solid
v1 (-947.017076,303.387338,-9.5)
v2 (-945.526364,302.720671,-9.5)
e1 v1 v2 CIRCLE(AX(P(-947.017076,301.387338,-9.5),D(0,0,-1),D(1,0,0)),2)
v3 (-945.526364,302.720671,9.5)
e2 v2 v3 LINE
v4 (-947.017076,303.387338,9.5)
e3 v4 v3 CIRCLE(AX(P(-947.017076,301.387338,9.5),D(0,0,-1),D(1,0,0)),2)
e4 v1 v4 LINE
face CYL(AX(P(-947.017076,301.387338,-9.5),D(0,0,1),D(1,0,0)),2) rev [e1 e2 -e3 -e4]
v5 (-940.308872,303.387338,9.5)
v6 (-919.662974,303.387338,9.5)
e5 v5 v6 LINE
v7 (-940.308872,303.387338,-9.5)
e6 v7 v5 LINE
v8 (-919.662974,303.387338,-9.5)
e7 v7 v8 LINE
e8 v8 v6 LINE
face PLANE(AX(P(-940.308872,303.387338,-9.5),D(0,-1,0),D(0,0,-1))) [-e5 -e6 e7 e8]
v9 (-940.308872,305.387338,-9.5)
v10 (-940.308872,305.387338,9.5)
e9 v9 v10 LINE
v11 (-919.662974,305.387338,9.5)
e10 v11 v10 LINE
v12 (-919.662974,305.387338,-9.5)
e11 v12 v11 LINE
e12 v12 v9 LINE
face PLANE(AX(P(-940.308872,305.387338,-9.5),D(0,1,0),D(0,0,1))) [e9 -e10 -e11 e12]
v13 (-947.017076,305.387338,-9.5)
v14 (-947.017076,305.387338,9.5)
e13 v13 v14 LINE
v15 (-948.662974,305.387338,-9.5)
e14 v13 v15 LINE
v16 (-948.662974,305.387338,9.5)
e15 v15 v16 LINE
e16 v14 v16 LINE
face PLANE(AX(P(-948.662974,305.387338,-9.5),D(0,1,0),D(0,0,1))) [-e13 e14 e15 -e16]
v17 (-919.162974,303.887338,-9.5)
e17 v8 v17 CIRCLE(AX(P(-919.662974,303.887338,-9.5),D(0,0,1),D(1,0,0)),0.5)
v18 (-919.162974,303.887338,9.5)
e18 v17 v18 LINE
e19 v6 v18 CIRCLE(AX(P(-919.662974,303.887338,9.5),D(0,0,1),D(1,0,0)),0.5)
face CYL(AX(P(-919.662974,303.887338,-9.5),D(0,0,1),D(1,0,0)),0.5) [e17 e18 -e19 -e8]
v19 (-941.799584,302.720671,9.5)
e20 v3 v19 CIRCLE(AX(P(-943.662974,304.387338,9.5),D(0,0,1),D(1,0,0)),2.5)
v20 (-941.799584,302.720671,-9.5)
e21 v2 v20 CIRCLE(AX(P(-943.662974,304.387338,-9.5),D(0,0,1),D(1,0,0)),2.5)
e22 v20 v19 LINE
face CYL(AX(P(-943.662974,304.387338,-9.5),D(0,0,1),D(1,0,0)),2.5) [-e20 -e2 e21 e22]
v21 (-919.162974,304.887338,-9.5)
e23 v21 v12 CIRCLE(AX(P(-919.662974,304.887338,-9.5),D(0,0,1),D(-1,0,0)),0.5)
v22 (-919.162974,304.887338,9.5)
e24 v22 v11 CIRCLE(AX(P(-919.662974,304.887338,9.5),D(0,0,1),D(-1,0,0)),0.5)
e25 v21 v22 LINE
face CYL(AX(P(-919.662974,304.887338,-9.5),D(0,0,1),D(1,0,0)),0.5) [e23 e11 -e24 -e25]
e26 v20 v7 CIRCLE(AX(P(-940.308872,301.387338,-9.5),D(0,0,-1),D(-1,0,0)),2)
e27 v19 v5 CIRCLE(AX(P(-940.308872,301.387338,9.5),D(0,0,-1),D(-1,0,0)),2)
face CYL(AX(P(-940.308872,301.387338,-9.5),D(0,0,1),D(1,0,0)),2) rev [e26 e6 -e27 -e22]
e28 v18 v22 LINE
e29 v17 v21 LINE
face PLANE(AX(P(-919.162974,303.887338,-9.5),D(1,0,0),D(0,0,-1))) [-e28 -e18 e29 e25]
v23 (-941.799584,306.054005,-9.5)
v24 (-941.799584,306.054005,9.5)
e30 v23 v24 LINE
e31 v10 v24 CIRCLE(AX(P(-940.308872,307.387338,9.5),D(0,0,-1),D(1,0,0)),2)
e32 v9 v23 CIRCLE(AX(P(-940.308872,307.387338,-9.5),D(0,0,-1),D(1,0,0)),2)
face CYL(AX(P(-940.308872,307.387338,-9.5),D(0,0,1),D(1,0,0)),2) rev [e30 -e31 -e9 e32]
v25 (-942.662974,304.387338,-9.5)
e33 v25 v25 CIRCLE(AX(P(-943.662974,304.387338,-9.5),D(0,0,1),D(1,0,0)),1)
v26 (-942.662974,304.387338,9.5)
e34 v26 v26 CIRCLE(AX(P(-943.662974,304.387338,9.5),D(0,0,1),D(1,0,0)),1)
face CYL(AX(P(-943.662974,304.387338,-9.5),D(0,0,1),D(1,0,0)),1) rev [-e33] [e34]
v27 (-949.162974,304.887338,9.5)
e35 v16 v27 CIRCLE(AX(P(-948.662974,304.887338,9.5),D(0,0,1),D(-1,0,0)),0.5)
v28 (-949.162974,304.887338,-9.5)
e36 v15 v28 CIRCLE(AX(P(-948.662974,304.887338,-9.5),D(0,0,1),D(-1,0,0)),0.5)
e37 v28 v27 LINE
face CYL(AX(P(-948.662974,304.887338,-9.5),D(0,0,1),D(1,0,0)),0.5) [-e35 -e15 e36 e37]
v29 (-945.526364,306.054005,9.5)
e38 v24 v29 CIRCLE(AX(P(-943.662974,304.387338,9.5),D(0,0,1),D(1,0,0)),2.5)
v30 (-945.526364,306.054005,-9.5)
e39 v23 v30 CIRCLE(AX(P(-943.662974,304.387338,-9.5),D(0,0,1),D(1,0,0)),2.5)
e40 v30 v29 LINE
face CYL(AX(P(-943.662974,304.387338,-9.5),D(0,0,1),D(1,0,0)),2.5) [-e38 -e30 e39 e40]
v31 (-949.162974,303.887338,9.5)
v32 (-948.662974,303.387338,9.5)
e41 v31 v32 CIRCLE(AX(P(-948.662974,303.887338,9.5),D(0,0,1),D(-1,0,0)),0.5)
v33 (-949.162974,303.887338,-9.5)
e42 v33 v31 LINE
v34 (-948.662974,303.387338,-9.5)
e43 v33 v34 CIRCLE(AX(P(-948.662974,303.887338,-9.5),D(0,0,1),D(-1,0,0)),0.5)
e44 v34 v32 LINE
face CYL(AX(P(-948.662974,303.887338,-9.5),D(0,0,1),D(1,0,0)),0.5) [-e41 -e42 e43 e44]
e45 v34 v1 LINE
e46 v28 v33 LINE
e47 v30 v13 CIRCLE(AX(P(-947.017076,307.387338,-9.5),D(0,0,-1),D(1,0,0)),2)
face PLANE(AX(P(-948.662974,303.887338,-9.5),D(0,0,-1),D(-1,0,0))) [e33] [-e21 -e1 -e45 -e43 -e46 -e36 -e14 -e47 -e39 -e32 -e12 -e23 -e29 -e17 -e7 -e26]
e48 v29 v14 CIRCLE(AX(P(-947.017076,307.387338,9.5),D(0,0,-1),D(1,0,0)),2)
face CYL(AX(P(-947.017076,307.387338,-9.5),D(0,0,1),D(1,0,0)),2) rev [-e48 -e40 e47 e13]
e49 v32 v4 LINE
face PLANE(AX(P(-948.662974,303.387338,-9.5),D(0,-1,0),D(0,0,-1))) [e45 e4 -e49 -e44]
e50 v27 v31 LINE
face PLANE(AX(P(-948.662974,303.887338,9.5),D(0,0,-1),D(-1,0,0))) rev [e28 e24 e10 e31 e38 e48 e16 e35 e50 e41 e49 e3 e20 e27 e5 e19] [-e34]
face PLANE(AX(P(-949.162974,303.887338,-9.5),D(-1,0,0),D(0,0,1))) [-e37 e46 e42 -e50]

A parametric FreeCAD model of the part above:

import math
import FreeCAD as App
import Part
import Sketcher
from FreeCAD import Vector

doc = App.newDocument("Part")
body = doc.addObject("PartDesign::Body", "Body")

sketch1 = body.newObject("Sketcher::SketchObject", "Sketch")
sketch1.AttachmentSupport = (doc.getObject("XY_Plane"), [""])
sketch1.MapMode = "FlatFace"
sketch1.addGeometry(Part.LineSegment(Vector(-948.66, 303.39, 0), Vector(-947.02, 303.39, 0)), False)
sketch1.addGeometry(Part.ArcOfCircle(Part.Circle(Vector(-947.02, 301.39, 0), Vector(0, 0, 1), 2), math.radians(42), math.radians(90)), False)
sketch1.addGeometry(Part.ArcOfCircle(Part.Circle(Vector(-943.66, 304.39, 0), Vector(0, 0, 1), 2.5), math.radians(-138), math.radians(-42)), False)
sketch1.addGeometry(Part.ArcOfCircle(Part.Circle(Vector(-940.31, 301.39, 0), Vector(0, 0, 1), 2), math.radians(90), math.radians(138)), False)
sketch1.addGeometry(Part.LineSegment(Vector(-940.31, 303.39, 0), Vector(-919.66, 303.39, 0)), False)
sketch1.addGeometry(Part.ArcOfCircle(Part.Circle(Vector(-919.66, 303.89, 0), Vector(0, 0, 1), 0.5), math.radians(-90), math.radians(0)), False)
sketch1.addGeometry(Part.LineSegment(Vector(-919.16, 303.89, 0), Vector(-919.16, 304.89, 0)), False)
sketch1.addGeometry(Part.ArcOfCircle(Part.Circle(Vector(-919.66, 304.89, 0), Vector(0, 0, 1), 0.5), math.radians(0), math.radians(90)), False)
sketch1.addGeometry(Part.LineSegment(Vector(-919.66, 305.39, 0), Vector(-940.31, 305.39, 0)), False)
sketch1.addGeometry(Part.ArcOfCircle(Part.Circle(Vector(-940.31, 307.39, 0), Vector(0, 0, 1), 2), math.radians(-138), math.radians(-90)), False)
sketch1.addGeometry(Part.ArcOfCircle(Part.Circle(Vector(-943.66, 304.39, 0), Vector(0, 0, 1), 2.5), math.radians(42), math.radians(138)), False)
sketch1.addGeometry(Part.ArcOfCircle(Part.Circle(Vector(-947.02, 307.39, 0), Vector(0, 0, 1), 2), math.radians(-90), math.radians(-42)), False)
sketch1.addGeometry(Part.LineSegment(Vector(-947.02, 305.39, 0), Vector(-948.66, 305.39, 0)), False)
sketch1.addGeometry(Part.ArcOfCircle(Part.Circle(Vector(-948.66, 304.89, 0), Vector(0, 0, 1), 0.5), math.radians(90), math.radians(180)), False)
sketch1.addGeometry(Part.LineSegment(Vector(-949.16, 304.89, 0), Vector(-949.16, 303.89, 0)), False)
sketch1.addGeometry(Part.ArcOfCircle(Part.Circle(Vector(-948.66, 303.89, 0), Vector(0, 0, 1), 0.5), math.radians(180), math.radians(270)), False)
sketch1.addGeometry(Part.Circle(Vector(-943.66, 304.39, 0), Vector(0, 0, 1), 1), False)
sketch1.addConstraint(Sketcher.Constraint("Tangent", 0, 2, 1, 2))
sketch1.addConstraint(Sketcher.Constraint("Tangent", 1, 1, 2, 1))
sketch1.addConstraint(Sketcher.Constraint("Tangent", 2, 2, 3, 2))
sketch1.addConstraint(Sketcher.Constraint("Tangent", 3, 1, 4, 1))
sketch1.addConstraint(Sketcher.Constraint("Tangent", 4, 2, 5, 1))
sketch1.addConstraint(Sketcher.Constraint("Tangent", 5, 2, 6, 1))
sketch1.addConstraint(Sketcher.Constraint("Tangent", 6, 2, 7, 1))
sketch1.addConstraint(Sketcher.Constraint("Tangent", 7, 2, 8, 1))
sketch1.addConstraint(Sketcher.Constraint("Tangent", 8, 2, 9, 2))
sketch1.addConstraint(Sketcher.Constraint("Tangent", 9, 1, 10, 1))
sketch1.addConstraint(Sketcher.Constraint("Tangent", 10, 2, 11, 2))
sketch1.addConstraint(Sketcher.Constraint("Tangent", 11, 1, 12, 1))
sketch1.addConstraint(Sketcher.Constraint("Tangent", 12, 2, 13, 1))
sketch1.addConstraint(Sketcher.Constraint("Tangent", 13, 2, 14, 1))
sketch1.addConstraint(Sketcher.Constraint("Tangent", 14, 2, 15, 1))
sketch1.addConstraint(Sketcher.Constraint("Tangent", 15, 2, 0, 1))
sketch1.addConstraint(Sketcher.Constraint("Horizontal", 0))
sketch1.addConstraint(Sketcher.Constraint("Horizontal", 4))
sketch1.addConstraint(Sketcher.Constraint("Vertical", 6))
sketch1.addConstraint(Sketcher.Constraint("Horizontal", 8))
sketch1.addConstraint(Sketcher.Constraint("Horizontal", 12))
sketch1.addConstraint(Sketcher.Constraint("Vertical", 14))
sketch1.addConstraint(Sketcher.Constraint("Coincident", 10, 3, 2, 3))
sketch1.addConstraint(Sketcher.Constraint("Coincident", 16, 3, 2, 3))
sketch1.addConstraint(Sketcher.Constraint("Equal", 1, 3))
sketch1.addConstraint(Sketcher.Constraint("Equal", 5, 7))
sketch1.addConstraint(Sketcher.Constraint("Equal", 3, 9))
sketch1.addConstraint(Sketcher.Constraint("Equal", 2, 10))
sketch1.addConstraint(Sketcher.Constraint("Equal", 9, 11))
sketch1.addConstraint(Sketcher.Constraint("Equal", 7, 13))
sketch1.addConstraint(Sketcher.Constraint("Equal", 13, 15))
sketch1.addConstraint(Sketcher.Constraint("Horizontal", 1, 3, 3, 3))
sketch1.addConstraint(Sketcher.Constraint("Horizontal", 9, 3, 11, 3))
sketch1.addConstraint(Sketcher.Constraint("Vertical", 3, 3, 9, 3))
sketch1.addConstraint(Sketcher.Constraint("Diameter", 16, 2.0))
sketch1.addConstraint(Sketcher.Constraint("Radius", 1, 2.0))
sketch1.addConstraint(Sketcher.Constraint("Radius", 2, 2.5))
sketch1.addConstraint(Sketcher.Constraint("Radius", 5, 0.5))
sketch1.addConstraint(Sketcher.Constraint("DistanceY", 6, 1, 6, 2, 1.0))
sketch1.addConstraint(Sketcher.Constraint("DistanceX", 2, 3, 5, 3, 24.0))
sketch1.addConstraint(Sketcher.Constraint("DistanceX", 13, 3, 10, 3, 5.0))
sketch1.addConstraint(Sketcher.Constraint("DistanceY", -1, 1, 1, 3, 301.387338))
sketch1.addConstraint(Sketcher.Constraint("DistanceX", 1, 3, -1, 1, 947.017076))
pad1 = body.newObject("PartDesign::Pad", "Pad")
pad1.Profile = sketch1
pad1.Type = "TwoLengths"
pad1.Length = 9.5
pad1.Length2 = 9.5

doc.recompute()
